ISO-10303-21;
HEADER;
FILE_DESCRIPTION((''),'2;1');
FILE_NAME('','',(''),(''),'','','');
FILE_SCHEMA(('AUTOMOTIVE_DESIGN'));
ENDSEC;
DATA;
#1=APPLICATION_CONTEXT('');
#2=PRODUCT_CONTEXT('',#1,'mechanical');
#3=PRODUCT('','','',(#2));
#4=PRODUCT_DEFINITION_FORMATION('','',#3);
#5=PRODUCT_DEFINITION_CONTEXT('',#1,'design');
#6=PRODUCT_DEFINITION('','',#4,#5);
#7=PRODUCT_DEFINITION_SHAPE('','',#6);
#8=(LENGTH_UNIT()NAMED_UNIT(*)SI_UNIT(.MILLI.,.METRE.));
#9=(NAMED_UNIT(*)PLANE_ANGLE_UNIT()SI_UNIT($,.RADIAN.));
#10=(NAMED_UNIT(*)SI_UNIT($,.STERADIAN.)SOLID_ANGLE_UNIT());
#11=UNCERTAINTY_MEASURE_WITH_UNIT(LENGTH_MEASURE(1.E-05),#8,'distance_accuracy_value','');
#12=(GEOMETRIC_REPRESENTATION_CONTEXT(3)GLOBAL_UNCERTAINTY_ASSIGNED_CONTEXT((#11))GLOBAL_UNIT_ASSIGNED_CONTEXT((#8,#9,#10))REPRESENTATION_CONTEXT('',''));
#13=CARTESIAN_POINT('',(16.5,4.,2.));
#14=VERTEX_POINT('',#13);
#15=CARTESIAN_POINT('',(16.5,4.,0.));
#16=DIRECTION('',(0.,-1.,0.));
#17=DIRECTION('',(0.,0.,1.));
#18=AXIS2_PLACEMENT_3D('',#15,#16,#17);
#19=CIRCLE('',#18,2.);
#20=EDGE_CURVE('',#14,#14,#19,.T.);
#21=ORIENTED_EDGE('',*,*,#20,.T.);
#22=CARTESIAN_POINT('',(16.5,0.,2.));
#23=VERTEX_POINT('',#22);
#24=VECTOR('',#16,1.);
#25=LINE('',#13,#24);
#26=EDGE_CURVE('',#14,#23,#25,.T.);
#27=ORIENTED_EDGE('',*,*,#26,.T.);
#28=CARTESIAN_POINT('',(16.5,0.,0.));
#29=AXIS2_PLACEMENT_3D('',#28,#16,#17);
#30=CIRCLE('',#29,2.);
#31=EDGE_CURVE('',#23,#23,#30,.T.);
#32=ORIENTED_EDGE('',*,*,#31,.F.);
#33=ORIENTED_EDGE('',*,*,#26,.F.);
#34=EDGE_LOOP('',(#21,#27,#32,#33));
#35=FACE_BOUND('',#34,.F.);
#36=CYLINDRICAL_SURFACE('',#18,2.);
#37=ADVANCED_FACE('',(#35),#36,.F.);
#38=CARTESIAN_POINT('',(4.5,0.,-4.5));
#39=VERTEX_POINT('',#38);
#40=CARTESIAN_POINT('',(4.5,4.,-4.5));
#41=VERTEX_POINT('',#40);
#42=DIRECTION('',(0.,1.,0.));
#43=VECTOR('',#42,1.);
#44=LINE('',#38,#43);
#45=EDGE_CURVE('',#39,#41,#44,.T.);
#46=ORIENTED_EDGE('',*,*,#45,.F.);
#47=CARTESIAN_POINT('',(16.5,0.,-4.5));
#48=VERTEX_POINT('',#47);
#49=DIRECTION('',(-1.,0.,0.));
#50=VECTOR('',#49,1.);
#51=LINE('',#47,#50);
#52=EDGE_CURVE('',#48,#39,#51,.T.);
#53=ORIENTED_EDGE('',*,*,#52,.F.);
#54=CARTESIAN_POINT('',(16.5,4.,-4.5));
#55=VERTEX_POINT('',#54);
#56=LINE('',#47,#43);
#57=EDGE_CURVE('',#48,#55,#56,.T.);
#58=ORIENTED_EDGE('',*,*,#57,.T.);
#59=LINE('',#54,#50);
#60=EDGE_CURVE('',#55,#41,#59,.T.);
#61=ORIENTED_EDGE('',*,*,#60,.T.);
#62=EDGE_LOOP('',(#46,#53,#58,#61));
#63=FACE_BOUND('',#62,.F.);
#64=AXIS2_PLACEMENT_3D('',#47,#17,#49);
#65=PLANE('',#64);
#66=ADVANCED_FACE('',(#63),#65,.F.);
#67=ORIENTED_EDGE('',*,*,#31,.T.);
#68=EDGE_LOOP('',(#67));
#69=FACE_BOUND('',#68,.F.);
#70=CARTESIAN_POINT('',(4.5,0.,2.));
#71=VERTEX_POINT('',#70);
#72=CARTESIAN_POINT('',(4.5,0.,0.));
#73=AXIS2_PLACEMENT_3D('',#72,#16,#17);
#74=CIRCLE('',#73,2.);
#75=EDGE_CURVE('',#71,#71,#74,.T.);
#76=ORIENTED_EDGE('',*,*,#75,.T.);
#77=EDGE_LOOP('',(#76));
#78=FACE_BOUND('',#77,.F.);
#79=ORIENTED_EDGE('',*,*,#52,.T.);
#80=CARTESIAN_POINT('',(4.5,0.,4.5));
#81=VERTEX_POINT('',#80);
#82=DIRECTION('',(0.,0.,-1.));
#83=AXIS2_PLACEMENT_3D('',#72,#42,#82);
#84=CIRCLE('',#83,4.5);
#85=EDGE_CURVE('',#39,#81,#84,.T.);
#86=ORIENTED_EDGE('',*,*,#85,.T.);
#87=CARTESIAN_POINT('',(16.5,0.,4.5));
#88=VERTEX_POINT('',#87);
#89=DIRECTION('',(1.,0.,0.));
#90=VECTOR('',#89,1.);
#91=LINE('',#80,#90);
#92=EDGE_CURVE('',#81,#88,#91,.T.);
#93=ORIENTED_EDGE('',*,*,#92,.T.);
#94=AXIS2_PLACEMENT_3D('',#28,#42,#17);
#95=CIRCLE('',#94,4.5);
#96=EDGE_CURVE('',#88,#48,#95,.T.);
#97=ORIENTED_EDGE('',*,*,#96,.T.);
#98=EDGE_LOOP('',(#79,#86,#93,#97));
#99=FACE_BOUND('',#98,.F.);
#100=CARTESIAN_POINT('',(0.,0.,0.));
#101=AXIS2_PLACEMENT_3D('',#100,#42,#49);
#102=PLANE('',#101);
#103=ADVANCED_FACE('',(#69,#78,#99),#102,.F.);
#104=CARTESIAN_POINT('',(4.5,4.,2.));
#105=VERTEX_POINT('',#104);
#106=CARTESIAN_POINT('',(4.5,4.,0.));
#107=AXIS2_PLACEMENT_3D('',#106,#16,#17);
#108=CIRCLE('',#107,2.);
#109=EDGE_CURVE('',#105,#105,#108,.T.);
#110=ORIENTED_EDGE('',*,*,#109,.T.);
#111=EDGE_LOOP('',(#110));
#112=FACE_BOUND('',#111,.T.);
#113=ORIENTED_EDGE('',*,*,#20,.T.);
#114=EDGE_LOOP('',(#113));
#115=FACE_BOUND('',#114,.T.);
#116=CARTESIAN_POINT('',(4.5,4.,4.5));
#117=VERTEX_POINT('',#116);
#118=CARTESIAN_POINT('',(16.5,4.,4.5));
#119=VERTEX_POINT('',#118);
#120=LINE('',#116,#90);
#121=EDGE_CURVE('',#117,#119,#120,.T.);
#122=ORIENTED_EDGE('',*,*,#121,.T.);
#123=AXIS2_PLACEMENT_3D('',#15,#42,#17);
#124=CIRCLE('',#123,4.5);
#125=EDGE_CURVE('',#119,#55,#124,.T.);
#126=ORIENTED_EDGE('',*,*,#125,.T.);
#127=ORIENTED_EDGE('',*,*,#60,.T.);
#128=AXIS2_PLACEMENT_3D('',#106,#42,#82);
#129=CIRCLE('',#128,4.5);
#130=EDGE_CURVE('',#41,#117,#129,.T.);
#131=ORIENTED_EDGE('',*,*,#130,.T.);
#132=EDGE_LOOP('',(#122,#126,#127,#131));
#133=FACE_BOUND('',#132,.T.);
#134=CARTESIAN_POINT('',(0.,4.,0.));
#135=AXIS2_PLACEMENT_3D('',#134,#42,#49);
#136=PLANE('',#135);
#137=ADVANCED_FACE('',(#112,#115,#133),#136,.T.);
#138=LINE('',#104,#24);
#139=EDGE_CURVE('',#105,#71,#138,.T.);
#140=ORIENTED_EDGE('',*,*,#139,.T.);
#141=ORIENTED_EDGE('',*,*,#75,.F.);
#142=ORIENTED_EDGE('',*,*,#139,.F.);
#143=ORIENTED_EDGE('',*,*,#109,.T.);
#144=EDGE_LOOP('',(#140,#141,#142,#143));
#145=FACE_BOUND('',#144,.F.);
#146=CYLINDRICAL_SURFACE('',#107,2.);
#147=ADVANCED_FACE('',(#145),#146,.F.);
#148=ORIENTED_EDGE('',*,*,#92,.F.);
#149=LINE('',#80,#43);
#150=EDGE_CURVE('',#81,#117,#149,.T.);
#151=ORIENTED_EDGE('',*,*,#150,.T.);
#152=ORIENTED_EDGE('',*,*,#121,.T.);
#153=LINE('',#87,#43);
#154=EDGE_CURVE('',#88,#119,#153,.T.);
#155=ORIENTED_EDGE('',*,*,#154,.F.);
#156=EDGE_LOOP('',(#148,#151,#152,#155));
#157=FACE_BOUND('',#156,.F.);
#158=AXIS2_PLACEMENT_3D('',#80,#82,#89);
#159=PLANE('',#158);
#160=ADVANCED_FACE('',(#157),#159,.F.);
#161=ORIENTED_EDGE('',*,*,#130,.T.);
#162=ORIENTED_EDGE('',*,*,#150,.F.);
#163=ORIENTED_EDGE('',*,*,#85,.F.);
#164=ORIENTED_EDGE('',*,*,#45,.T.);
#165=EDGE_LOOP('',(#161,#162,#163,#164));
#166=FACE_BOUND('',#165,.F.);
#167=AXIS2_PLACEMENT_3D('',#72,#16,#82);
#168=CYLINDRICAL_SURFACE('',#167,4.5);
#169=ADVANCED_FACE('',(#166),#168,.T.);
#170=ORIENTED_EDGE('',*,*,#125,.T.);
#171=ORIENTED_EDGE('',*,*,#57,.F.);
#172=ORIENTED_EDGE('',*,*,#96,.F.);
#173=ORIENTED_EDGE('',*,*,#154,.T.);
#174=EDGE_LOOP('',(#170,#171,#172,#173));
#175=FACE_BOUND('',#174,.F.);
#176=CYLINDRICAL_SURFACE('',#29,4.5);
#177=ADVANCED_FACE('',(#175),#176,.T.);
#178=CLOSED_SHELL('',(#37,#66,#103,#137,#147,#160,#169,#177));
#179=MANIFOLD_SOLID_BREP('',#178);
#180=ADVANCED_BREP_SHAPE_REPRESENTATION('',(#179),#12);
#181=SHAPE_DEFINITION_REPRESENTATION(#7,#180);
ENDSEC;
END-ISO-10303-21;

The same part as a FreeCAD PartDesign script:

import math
import FreeCAD as App
import Part
import Sketcher

V = App.Vector

doc = App.newDocument("Part")
body = doc.addObject("PartDesign::Body", "Body")

# Sketch on XZ plane
sketch1 = body.newObject("Sketcher::SketchObject", "Sketch")
sketch1.AttachmentSupport = (doc.getObject("XZ_Plane"), [""])
sketch1.MapMode = "FlatFace"
sketch1.addGeometry(Part.ArcOfCircle(Part.Circle(V(4.5, 0, 0), V(0, 0, 1), 4.5), math.radians(90), math.radians(270)), False)
sketch1.addGeometry(Part.LineSegment(V(4.5, 4.5, 0), V(16.5, 4.5, 0)), False)
sketch1.addGeometry(Part.ArcOfCircle(Part.Circle(V(16.5, 0, 0), V(0, 0, 1), 4.5), math.radians(-90), math.radians(90)), False)
sketch1.addGeometry(Part.LineSegment(V(16.5, -4.5, 0), V(4.5, -4.5, 0)), False)
sketch1.addConstraint(Sketcher.Constraint("Tangent", 0, 1, 1, 1))
sketch1.addConstraint(Sketcher.Constraint("Tangent", 1, 2, 2, 2))
sketch1.addConstraint(Sketcher.Constraint("Tangent", 2, 1, 3, 1))
sketch1.addConstraint(Sketcher.Constraint("Tangent", 3, 2, 0, 2))
sketch1.addConstraint(Sketcher.Constraint("Horizontal", 1))
sketch1.addConstraint(Sketcher.Constraint("Horizontal", 3))
sketch1.addConstraint(Sketcher.Constraint("PointOnObject", 0, 3, -1))
sketch1.addConstraint(Sketcher.Constraint("Radius", 0, 4.5))
sketch1.addConstraint(Sketcher.Constraint("DistanceX", 1, 1, 1, 2, 12.0))
sketch1.addConstraint(Sketcher.Constraint("DistanceX", -1, 1, 0, 3, 4.5))
pad1 = body.newObject("PartDesign::Pad", "Pad")
pad1.Profile = sketch1
pad1.Length = 4
pad1.Reversed = True

# Sketch on XZ plane
sketch2 = body.newObject("Sketcher::SketchObject", "Sketch001")
sketch2.AttachmentSupport = (doc.getObject("XZ_Plane"), [""])
sketch2.MapMode = "FlatFace"
sketch2.AttachmentOffset = App.Placement(V(0, 0, -4), App.Rotation())
sketch2.addGeometry(Part.Circle(V(4.5, 0, 0), V(0, 0, 1), 2), False)
sketch2.addConstraint(Sketcher.Constraint("PointOnObject", 0, 3, -1))
sketch2.addConstraint(Sketcher.Constraint("Diameter", 0, 4.0))
sketch2.addConstraint(Sketcher.Constraint("DistanceX", -1, 1, 0, 3, 4.5))
doc.recompute()
hole = body.newObject("PartDesign::Hole", "Hole")
hole.Profile = sketch2
hole.ThreadType = "None"
hole.Diameter = 4
hole.DepthType = "ThroughAll"
hole.Reversed = True

# Sketch on XZ plane
sketch3 = body.newObject("Sketcher::SketchObject", "Sketch002")
sketch3.AttachmentSupport = (doc.getObject("XZ_Plane"), [""])
sketch3.MapMode = "FlatFace"
sketch3.AttachmentOffset = App.Placement(V(0, 0, -4), App.Rotation())
sketch3.addGeometry(Part.Circle(V(16.5, 0, 0), V(0, 0, 1), 2), False)
sketch3.addConstraint(Sketcher.Constraint("PointOnObject", 0, 3, -1))
sketch3.addConstraint(Sketcher.Constraint("Diameter", 0, 4.0))
sketch3.addConstraint(Sketcher.Constraint("DistanceX", -1, 1, 0, 3, 16.5))
doc.recompute()
hole2 = body.newObject("PartDesign::Hole", "Hole001")
hole2.Profile = sketch3
hole2.ThreadType = "None"
hole2.Diameter = 4
hole2.DepthType = "ThroughAll"
hole2.Reversed = True

doc.recompute()
